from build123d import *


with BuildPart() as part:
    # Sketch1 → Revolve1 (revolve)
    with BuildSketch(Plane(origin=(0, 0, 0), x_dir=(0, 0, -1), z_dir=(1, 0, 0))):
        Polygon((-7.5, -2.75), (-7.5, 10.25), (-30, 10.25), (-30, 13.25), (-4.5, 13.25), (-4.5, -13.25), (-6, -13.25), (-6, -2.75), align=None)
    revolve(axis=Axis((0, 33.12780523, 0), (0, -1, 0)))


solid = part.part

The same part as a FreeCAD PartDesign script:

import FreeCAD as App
import Part
import Sketcher

V = App.Vector


def add_polygon(sketch, points):
    """Adds a closed chain of lines whose ends are joined by coincident constraints."""
    first, n = sketch.GeometryCount, len(points)
    for a, b in zip(points, points[1:] + points[:1]):
        sketch.addGeometry(Part.LineSegment(App.Vector(*a, 0), App.Vector(*b, 0)), False)
    for i in range(n):
        sketch.addConstraint(Sketcher.Constraint("Coincident", first + i, 2, first + (i + 1) % n, 1))

doc = App.newDocument("Part")
body = doc.addObject("PartDesign::Body", "Body")

# Sketch on YZ plane
sketch1 = doc.addObject("Sketcher::SketchObject", "Sketch")
body.addObject(sketch1)
sketch1.AttachmentSupport = (doc.YZ_Plane, [""])
sketch1.MapMode = "FlatFace"
add_polygon(sketch1, [(10.2, 7.5), (-2.8, 7.5), (-2.8, 6), (-13.2, 6), (-13.2, 4.5), (13.2, 4.5), (13.2, 30), (10.2, 30)])  # lines 0-7
sketch1.addConstraint([
    Sketcher.Constraint("Horizontal", 0),
    Sketcher.Constraint("Vertical", 1),
    Sketcher.Constraint("Horizontal", 2),
    Sketcher.Constraint("Vertical", 3),
    Sketcher.Constraint("Horizontal", 4),
    Sketcher.Constraint("Vertical", 5),
    Sketcher.Constraint("Horizontal", 6),
    Sketcher.Constraint("Vertical", 7),
    Sketcher.Constraint("Equal", 1, 3),
    Sketcher.Constraint("DistanceX", 0, 2, 0, 1, 13.0),
    Sketcher.Constraint("DistanceX", 6, 2, 6, 1, 3.0),
    Sketcher.Constraint("DistanceX", 2, 2, 2, 1, 10.5),
    Sketcher.Constraint("DistanceY", 1, 2, 1, 1, 1.5),
    Sketcher.Constraint("DistanceY", 5, 1, 5, 2, 25.5),
    Sketcher.Constraint("DistanceY", -1, 1, 1, 2, 6.0),
    Sketcher.Constraint("DistanceX", 0, 2, -1, 1, 2.75),
])
revolution = doc.addObject("PartDesign::Revolution", "Revolution")
body.addObject(revolution)
revolution.Profile = sketch1
revolution.ReferenceAxis = (sketch1, ["H_Axis"])
revolution.Angle = 360

doc.recompute()
